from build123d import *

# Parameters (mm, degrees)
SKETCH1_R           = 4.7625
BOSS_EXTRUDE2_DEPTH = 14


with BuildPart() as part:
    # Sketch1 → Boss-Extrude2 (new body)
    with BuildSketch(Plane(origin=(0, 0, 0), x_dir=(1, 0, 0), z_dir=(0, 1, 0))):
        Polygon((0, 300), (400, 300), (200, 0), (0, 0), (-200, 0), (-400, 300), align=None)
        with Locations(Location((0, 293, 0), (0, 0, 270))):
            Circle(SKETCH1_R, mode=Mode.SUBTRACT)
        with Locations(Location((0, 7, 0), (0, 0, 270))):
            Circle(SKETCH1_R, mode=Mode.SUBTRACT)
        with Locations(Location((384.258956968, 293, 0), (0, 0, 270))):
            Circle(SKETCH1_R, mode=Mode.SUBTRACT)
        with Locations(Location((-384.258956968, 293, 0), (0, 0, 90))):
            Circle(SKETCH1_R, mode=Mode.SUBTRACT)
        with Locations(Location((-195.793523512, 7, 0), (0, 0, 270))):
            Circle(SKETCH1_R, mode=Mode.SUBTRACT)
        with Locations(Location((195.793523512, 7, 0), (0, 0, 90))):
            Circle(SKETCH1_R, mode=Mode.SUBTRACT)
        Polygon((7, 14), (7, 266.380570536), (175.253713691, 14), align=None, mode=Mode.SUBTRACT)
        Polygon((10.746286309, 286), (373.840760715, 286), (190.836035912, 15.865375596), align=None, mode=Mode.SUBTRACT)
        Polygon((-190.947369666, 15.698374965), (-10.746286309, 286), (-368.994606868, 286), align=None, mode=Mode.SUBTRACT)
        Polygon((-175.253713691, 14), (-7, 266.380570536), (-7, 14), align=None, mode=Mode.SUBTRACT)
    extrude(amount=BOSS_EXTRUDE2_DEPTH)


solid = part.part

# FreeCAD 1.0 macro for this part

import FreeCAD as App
import Part
import Sketcher

V = App.Vector
Q = App.Units.Quantity


def add_polygon(sketch, points):
    """Adds a closed chain of lines whose ends are joined by coincident constraints."""
    first, n = sketch.GeometryCount, len(points)
    for a, b in zip(points, points[1:] + points[:1]):
        sketch.addGeometry(Part.LineSegment(App.Vector(*a, 0), App.Vector(*b, 0)), False)
    for i in range(n):
        sketch.addConstraint(Sketcher.Constraint("Coincident", first + i, 2, first + (i + 1) % n, 1))

doc = App.newDocument("Part")
body = doc.addObject("PartDesign::Body", "Body")

# Sketch on XZ plane
sketch1 = doc.addObject("Sketcher::SketchObject", "Sketch")
body.addObject(sketch1)
sketch1.AttachmentSupport = (doc.XZ_Plane, [""])
sketch1.MapMode = "FlatFace"
add_polygon(sketch1, [(400, -300), (-400, -300), (-200, 0), (200, 0)])  # lines 0-3
sketch1.addGeometry(Part.Circle(V(195.8, -7, 0), V(0, 0, 1), 4.8), False)  # 4
add_polygon(sketch1, [(7, -14), (7, -266.4), (175.3, -14)])  # lines 5-7
sketch1.addGeometry(Part.Circle(V(0, -7, 0), V(0, 0, 1), 4.8), False)  # 8
sketch1.addGeometry(Part.Circle(V(-195.8, -7, 0), V(0, 0, 1), 4.8), False)  # 9
add_polygon(sketch1, [(-175.3, -14), (-7, -266.4), (-7, -14)])  # lines 10-12
add_polygon(sketch1, [(10.7, -286), (373.8, -286), (190.8, -15.9)])  # lines 13-15
sketch1.addGeometry(Part.Circle(V(384.3, -293, 0), V(0, 0, 1), 4.8), False)  # 16
add_polygon(sketch1, [(-190.9, -15.7), (-369, -286), (-10.7, -286)])  # lines 17-19
sketch1.addGeometry(Part.Circle(V(0, -293, 0), V(0, 0, 1), 4.8), False)  # 20
sketch1.addGeometry(Part.Circle(V(-384.3, -293, 0), V(0, 0, 1), 4.8), False)  # 21
sketch1.addConstraint(Sketcher.Constraint("Horizontal", 0))
sketch1.addConstraint(Sketcher.Constraint("Horizontal", 2))
sketch1.addConstraint(Sketcher.Constraint("Vertical", 5))
sketch1.addConstraint(Sketcher.Constraint("Horizontal", 7))
sketch1.addConstraint(Sketcher.Constraint("Vertical", 11))
sketch1.addConstraint(Sketcher.Constraint("Horizontal", 12))
sketch1.addConstraint(Sketcher.Constraint("Horizontal", 13))
sketch1.addConstraint(Sketcher.Constraint("Horizontal", 18))
sketch1.addConstraint(Sketcher.Constraint("Equal", 4, 8))
sketch1.addConstraint(Sketcher.Constraint("Equal", 8, 9))
sketch1.addConstraint(Sketcher.Constraint("Equal", 9, 16))
sketch1.addConstraint(Sketcher.Constraint("Equal", 16, 20))
sketch1.addConstraint(Sketcher.Constraint("Equal", 20, 21))
sketch1.addConstraint(Sketcher.Constraint("Symmetric", 1, 2, 2, 2, -1, 1))
sketch1.addConstraint(Sketcher.Constraint("Symmetric", 4, 3, 9, 3, -2))
sketch1.addConstraint(Sketcher.Constraint("Symmetric", 16, 3, 21, 3, -2))
sketch1.addConstraint(Sketcher.Constraint("Symmetric", 5, 2, 10, 2, -2))
sketch1.addConstraint(Sketcher.Constraint("Symmetric", 6, 2, 12, 2, -2))
sketch1.addConstraint(Sketcher.Constraint("Symmetric", 15, 2, 18, 2, -2))
sketch1.addConstraint(Sketcher.Constraint("PointOnObject", 8, 3, -2))
sketch1.addConstraint(Sketcher.Constraint("PointOnObject", 20, 3, -2))
sketch1.addConstraint(Sketcher.Constraint("Parallel", 1, 6))
sketch1.addConstraint(Sketcher.Constraint("Parallel", 3, 10))
sketch1.addConstraint(Sketcher.Constraint("Parallel", 6, 15))
sketch1.addConstraint(Sketcher.Constraint("Parallel", 10, 19))
sketch1.addConstraint(Sketcher.Constraint("Horizontal", 4, 3, 8, 3))
sketch1.addConstraint(Sketcher.Constraint("Horizontal", 16, 3, 20, 3))
sketch1.addConstraint(Sketcher.Constraint("DistanceX", 0, 2, 0, 1, Q("800 mm")))
sketch1.addConstraint(Sketcher.Constraint("DistanceX", 2, 1, 2, 2, Q("400 mm")))
sketch1.addConstraint(Sketcher.Constraint("Diameter", 4, Q("9.525 mm")))
sketch1.addConstraint(Sketcher.Constraint("DistanceY", 4, 3, -1, 1, Q("7 mm")))
sketch1.addConstraint(Sketcher.Constraint("DistanceY", 16, 3, -1, 1, Q("293 mm")))
sketch1.addConstraint(Sketcher.Constraint("DistanceY", 0, 2, -1, 1, Q("300 mm")))
sketch1.addConstraint(Sketcher.Constraint("DistanceX", -1, 1, 5, 2, Q("7 mm")))
sketch1.addConstraint(Sketcher.Constraint("DistanceY", 6, 2, -1, 1, Q("14 mm")))
sketch1.addConstraint(Sketcher.Constraint("DistanceY", 13, 2, -1, 1, Q("286 mm")))
sketch1.addConstraint(Sketcher.Constraint("DistanceX", 18, 1, 18, 2, Q("358.248321 mm")))
sketch1.addConstraint(Sketcher.Constraint("DistanceY", 5, 2, 5, 1, Q("252.380571 mm")))
sketch1.addConstraint(Sketcher.Constraint("DistanceX", 13, 1, 13, 2, Q("363.094474 mm")))
sketch1.addConstraint(Sketcher.Constraint("DistanceX", -1, 1, 13, 2, Q("373.840761 mm")))
sketch1.addConstraint(Sketcher.Constraint("DistanceX", 19, 2, -1, 1, Q("190.94737 mm")))
sketch1.addConstraint(Sketcher.Constraint("DistanceX", 9, 3, 16, 3, Q("580.05248 mm")))
sketch1.addConstraint(Sketcher.Constraint("DistanceX", 6, 2, 4, 3, Q("20.53981 mm")))
sketch1.addConstraint(Sketcher.Constraint("Distance", 14, Q("326.287365 mm")))
pad1 = doc.addObject("PartDesign::Pad", "Pad")
body.addObject(pad1)
pad1.Profile = sketch1
pad1.Length = 14
pad1.Reversed = True

doc.recompute()
